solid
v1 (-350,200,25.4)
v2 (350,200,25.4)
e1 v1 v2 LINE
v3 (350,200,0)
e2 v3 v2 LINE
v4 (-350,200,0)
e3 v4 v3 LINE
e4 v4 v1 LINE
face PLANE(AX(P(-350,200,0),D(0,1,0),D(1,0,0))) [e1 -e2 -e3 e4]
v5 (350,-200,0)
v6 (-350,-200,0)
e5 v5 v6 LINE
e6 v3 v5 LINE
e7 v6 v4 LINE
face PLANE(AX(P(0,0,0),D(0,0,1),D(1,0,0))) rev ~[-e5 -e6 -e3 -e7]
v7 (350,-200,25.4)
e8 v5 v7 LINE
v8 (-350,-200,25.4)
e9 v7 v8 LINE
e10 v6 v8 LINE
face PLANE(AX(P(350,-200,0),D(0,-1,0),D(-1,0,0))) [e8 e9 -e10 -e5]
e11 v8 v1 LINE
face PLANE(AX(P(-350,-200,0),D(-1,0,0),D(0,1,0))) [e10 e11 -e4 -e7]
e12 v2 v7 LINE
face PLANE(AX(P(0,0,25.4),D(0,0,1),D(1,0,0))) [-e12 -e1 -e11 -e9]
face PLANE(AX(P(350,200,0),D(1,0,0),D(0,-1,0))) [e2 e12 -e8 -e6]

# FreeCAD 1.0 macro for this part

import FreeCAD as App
import Part
import Sketcher
from FreeCAD import Vector
Q = App.Units.Quantity

doc = App.newDocument("Part")
body = doc.addObject("PartDesign::Body", "Body")

sketch1 = doc.addObject("Sketcher::SketchObject", "Sketch")
body.addObject(sketch1)
sketch1.AttachmentSupport = (doc.XY_Plane, [""])
sketch1.MapMode = "FlatFace"
sketch1.addGeometry([
    Part.LineSegment(Vector(-350, -200, 0), Vector(350, -200, 0)),
    Part.LineSegment(Vector(350, -200, 0), Vector(350, 200, 0)),
    Part.LineSegment(Vector(350, 200, 0), Vector(-350, 200, 0)),
    Part.LineSegment(Vector(-350, 200, 0), Vector(-350, -200, 0)),
], False)
sketch1.addConstraint([
    Sketcher.Constraint("Coincident", 0, 2, 1, 1),
    Sketcher.Constraint("Coincident", 1, 2, 2, 1),
    Sketcher.Constraint("Coincident", 2, 2, 3, 1),
    Sketcher.Constraint("Coincident", 3, 2, 0, 1),
    Sketcher.Constraint("Horizontal", 0),
    Sketcher.Constraint("Vertical", 1),
    Sketcher.Constraint("Horizontal", 2),
    Sketcher.Constraint("Vertical", 3),
    Sketcher.Constraint("Symmetric", 0, 2, 2, 2, -1, 1),
    Sketcher.Constraint("DistanceX", 0, 1, 0, 2, Q("700 mm")),
    Sketcher.Constraint("DistanceY", 1, 1, 1, 2, Q("400 mm")),
])
pad1 = doc.addObject("PartDesign::Pad", "Pad")
body.addObject(pad1)
pad1.Profile = sketch1
pad1.Length = 25.4

doc.recompute()
